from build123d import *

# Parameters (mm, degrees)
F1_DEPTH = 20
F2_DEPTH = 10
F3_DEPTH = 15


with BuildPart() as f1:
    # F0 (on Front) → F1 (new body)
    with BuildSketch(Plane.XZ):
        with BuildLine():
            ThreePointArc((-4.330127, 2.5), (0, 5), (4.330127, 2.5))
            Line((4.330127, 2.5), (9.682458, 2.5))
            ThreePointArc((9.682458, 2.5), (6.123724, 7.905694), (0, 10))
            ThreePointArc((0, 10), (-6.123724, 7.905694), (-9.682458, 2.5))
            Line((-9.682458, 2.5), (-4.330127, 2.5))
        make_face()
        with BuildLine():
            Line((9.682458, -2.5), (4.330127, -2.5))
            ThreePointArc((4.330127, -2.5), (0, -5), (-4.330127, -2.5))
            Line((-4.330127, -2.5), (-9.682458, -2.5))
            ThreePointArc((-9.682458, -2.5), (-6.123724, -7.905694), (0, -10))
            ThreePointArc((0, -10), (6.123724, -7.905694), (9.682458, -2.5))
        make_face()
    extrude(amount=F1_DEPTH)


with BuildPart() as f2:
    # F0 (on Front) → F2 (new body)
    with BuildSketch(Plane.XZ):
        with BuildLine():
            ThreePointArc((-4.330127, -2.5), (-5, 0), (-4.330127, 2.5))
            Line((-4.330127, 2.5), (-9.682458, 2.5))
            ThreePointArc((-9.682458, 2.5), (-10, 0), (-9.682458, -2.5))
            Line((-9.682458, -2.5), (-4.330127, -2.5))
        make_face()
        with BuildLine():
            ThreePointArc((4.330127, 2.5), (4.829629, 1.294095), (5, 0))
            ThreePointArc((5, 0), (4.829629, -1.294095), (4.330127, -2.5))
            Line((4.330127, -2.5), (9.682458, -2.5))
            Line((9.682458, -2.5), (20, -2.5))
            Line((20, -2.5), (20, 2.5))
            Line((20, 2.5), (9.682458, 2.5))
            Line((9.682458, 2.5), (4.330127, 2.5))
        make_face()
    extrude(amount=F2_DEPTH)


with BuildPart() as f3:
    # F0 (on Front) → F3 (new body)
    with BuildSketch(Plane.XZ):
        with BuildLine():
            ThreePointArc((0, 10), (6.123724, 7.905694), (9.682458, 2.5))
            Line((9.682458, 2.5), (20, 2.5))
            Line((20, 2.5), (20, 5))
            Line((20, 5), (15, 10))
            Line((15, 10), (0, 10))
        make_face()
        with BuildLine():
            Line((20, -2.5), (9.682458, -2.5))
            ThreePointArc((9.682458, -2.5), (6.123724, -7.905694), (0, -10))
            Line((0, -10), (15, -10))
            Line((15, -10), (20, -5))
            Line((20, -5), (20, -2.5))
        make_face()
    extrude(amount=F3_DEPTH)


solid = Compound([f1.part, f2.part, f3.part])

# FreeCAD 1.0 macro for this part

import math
import FreeCAD as App
import Part
import Sketcher

doc = App.newDocument("Part")
body = doc.addObject("PartDesign::Body", "Body")
body.AllowCompound = True

sketch1 = doc.addObject("Sketcher::SketchObject", "Sketch")
body.addObject(sketch1)
sketch1.AttachmentSupport = (doc.XZ_Plane, [""])
sketch1.MapMode = "FlatFace"
sketch1.addGeometry(Part.ArcOfCircle(Part.Circle(App.Vector(0, 0, 0), App.Vector(0, 0, 1), 5), math.radians(30), math.radians(150)), False)
sketch1.addGeometry(Part.LineSegment(App.Vector(4.3, 2.5, 0), App.Vector(9.7, 2.5, 0)), False)
sketch1.addGeometry(Part.ArcOfCircle(Part.Circle(App.Vector(0, 0, 0), App.Vector(0, 0, 1), 10), math.radians(14), math.radians(90)), False)
sketch1.addGeometry(Part.ArcOfCircle(Part.Circle(App.Vector(0, 0, 0), App.Vector(0, 0, 1), 10), math.radians(90), math.radians(166)), False)
sketch1.addGeometry(Part.LineSegment(App.Vector(-9.7, 2.5, 0), App.Vector(-4.3, 2.5, 0)), False)
sketch1.addGeometry(Part.LineSegment(App.Vector(9.7, -2.5, 0), App.Vector(4.3, -2.5, 0)), False)
sketch1.addGeometry(Part.ArcOfCircle(Part.Circle(App.Vector(0, 0, 0), App.Vector(0, 0, 1), 5), math.radians(-150), math.radians(-30)), False)
sketch1.addGeometry(Part.LineSegment(App.Vector(-4.3, -2.5, 0), App.Vector(-9.7, -2.5, 0)), False)
sketch1.addGeometry(Part.ArcOfCircle(Part.Circle(App.Vector(0, 0, 0), App.Vector(0, 0, 1), 10), math.radians(-166), math.radians(-90)), False)
sketch1.addGeometry(Part.ArcOfCircle(Part.Circle(App.Vector(0, 0, 0), App.Vector(0, 0, 1), 10), math.radians(-90), math.radians(-14)), False)
sketch1.addConstraint(Sketcher.Constraint("Coincident", 0, 1, 1, 1))
sketch1.addConstraint(Sketcher.Constraint("Coincident", 1, 2, 2, 1))
sketch1.addConstraint(Sketcher.Constraint("Tangent", 2, 2, 3, 1))
sketch1.addConstraint(Sketcher.Constraint("Coincident", 3, 2, 4, 1))
sketch1.addConstraint(Sketcher.Constraint("Coincident", 4, 2, 0, 2))
sketch1.addConstraint(Sketcher.Constraint("Coincident", 5, 2, 6, 2))
sketch1.addConstraint(Sketcher.Constraint("Coincident", 6, 1, 7, 1))
sketch1.addConstraint(Sketcher.Constraint("Coincident", 7, 2, 8, 1))
sketch1.addConstraint(Sketcher.Constraint("Tangent", 8, 2, 9, 1))
sketch1.addConstraint(Sketcher.Constraint("Coincident", 9, 2, 5, 1))
sketch1.addConstraint(Sketcher.Constraint("Horizontal", 1))
sketch1.addConstraint(Sketcher.Constraint("Horizontal", 4))
sketch1.addConstraint(Sketcher.Constraint("Horizontal", 5))
sketch1.addConstraint(Sketcher.Constraint("Horizontal", 7))
sketch1.addConstraint(Sketcher.Constraint("Coincident", 0, 3, -1, 1))
sketch1.addConstraint(Sketcher.Constraint("Coincident", 2, 3, -1, 1))
sketch1.addConstraint(Sketcher.Constraint("Coincident", 6, 3, -1, 1))
sketch1.addConstraint(Sketcher.Constraint("Coincident", 8, 3, -1, 1))
sketch1.addConstraint(Sketcher.Constraint("Equal", 2, 3))
sketch1.addConstraint(Sketcher.Constraint("Equal", 0, 6))
sketch1.addConstraint(Sketcher.Constraint("Equal", 3, 8))
sketch1.addConstraint(Sketcher.Constraint("Equal", 8, 9))
sketch1.addConstraint(Sketcher.Constraint("PointOnObject", 2, 2, -2))
sketch1.addConstraint(Sketcher.Constraint("PointOnObject", 8, 2, -2))
sketch1.addConstraint(Sketcher.Constraint("Horizontal", 1, 2, 3, 2))
sketch1.addConstraint(Sketcher.Constraint("Horizontal", 5, 2, 6, 1))
sketch1.addConstraint(Sketcher.Constraint("Vertical", 0, 1, 5, 2))
sketch1.addConstraint(Sketcher.Constraint("Radius", 0, 5.0))
sketch1.addConstraint(Sketcher.Constraint("Radius", 2, 10.0))
sketch1.addConstraint(Sketcher.Constraint("DistanceY", 5, 2, 0, 1, 5.0))
pad1 = doc.addObject("PartDesign::Pad", "Pad")
body.addObject(pad1)
pad1.Profile = sketch1
pad1.Length = 20
body2 = doc.addObject("PartDesign::Body", "Body001")
body2.AllowCompound = True

sketch2 = doc.addObject("Sketcher::SketchObject", "Sketch001")
body2.addObject(sketch2)
sketch2.AttachmentSupport = (doc.getObject("XZ_Plane001"), [""])
sketch2.MapMode = "FlatFace"
sketch2.addGeometry(Part.ArcOfCircle(Part.Circle(App.Vector(0, 0, 0), App.Vector(0, 0, 1), 5), math.radians(150), math.radians(210)), False)
sketch2.addGeometry(Part.LineSegment(App.Vector(-4.3, 2.5, 0), App.Vector(-9.7, 2.5, 0)), False)
sketch2.addGeometry(Part.ArcOfCircle(Part.Circle(App.Vector(0, 0, 0), App.Vector(0, 0, 1), 10), math.radians(166), math.radians(194)), False)
sketch2.addGeometry(Part.LineSegment(App.Vector(-9.7, -2.5, 0), App.Vector(-4.3, -2.5, 0)), False)
sketch2.addGeometry(Part.ArcOfCircle(Part.Circle(App.Vector(0, 0, 0), App.Vector(0, 0, 1), 5), math.radians(0), math.radians(30)), False)
sketch2.addGeometry(Part.ArcOfCircle(Part.Circle(App.Vector(0, 0, 0), App.Vector(0, 0, 1), 5), math.radians(-30), math.radians(0)), False)
sketch2.addGeometry(Part.LineSegment(App.Vector(4.3, -2.5, 0), App.Vector(20, -2.5, 0)), False)
sketch2.addGeometry(Part.LineSegment(App.Vector(20, -2.5, 0), App.Vector(20, 2.5, 0)), False)
sketch2.addGeometry(Part.LineSegment(App.Vector(20, 2.5, 0), App.Vector(4.3, 2.5, 0)), False)
sketch2.addConstraint(Sketcher.Constraint("Coincident", 0, 1, 1, 1))
sketch2.addConstraint(Sketcher.Constraint("Coincident", 1, 2, 2, 1))
sketch2.addConstraint(Sketcher.Constraint("Coincident", 2, 2, 3, 1))
sketch2.addConstraint(Sketcher.Constraint("Coincident", 3, 2, 0, 2))
sketch2.addConstraint(Sketcher.Constraint("Tangent", 4, 1, 5, 2))
sketch2.addConstraint(Sketcher.Constraint("Coincident", 5, 1, 6, 1))
sketch2.addConstraint(Sketcher.Constraint("Coincident", 6, 2, 7, 1))
sketch2.addConstraint(Sketcher.Constraint("Coincident", 7, 2, 8, 1))
sketch2.addConstraint(Sketcher.Constraint("Coincident", 8, 2, 4, 2))
sketch2.addConstraint(Sketcher.Constraint("Horizontal", 1))
sketch2.addConstraint(Sketcher.Constraint("Horizontal", 3))
sketch2.addConstraint(Sketcher.Constraint("Horizontal", 6))
sketch2.addConstraint(Sketcher.Constraint("Vertical", 7))
sketch2.addConstraint(Sketcher.Constraint("Horizontal", 8))
sketch2.addConstraint(Sketcher.Constraint("Coincident", 0, 3, -1, 1))
sketch2.addConstraint(Sketcher.Constraint("Coincident", 4, 3, -1, 1))
sketch2.addConstraint(Sketcher.Constraint("Equal", 4, 5))
sketch2.addConstraint(Sketcher.Constraint("Symmetric", 0, 1, 5, 1, -1, 1))
sketch2.addConstraint(Sketcher.Constraint("Symmetric", 1, 2, 2, 2, -1))
sketch2.addConstraint(Sketcher.Constraint("PointOnObject", 4, 1, -1))
sketch2.addConstraint(Sketcher.Constraint("Horizontal", 1, 2, 7, 2))
sketch2.addConstraint(Sketcher.Constraint("Radius", 0, 5.0))
sketch2.addConstraint(Sketcher.Constraint("DistanceY", 7, 1, 7, 2, 5.0))
sketch2.addConstraint(Sketcher.Constraint("DistanceX", -1, 1, 6, 2, 20.0))
sketch2.addConstraint(Sketcher.Constraint("Radius", 2, 9.999989))
sketch2.addConstraint(Sketcher.Constraint("DistanceX", 1, 2, 1, 1, 5.352331))
pad2 = doc.addObject("PartDesign::Pad", "Pad001")
body2.addObject(pad2)
pad2.Profile = sketch2
pad2.Length = 10
body3 = doc.addObject("PartDesign::Body", "Body002")
body3.AllowCompound = True

sketch3 = doc.addObject("Sketcher::SketchObject", "Sketch002")
body3.addObject(sketch3)
sketch3.AttachmentSupport = (doc.getObject("XZ_Plane002"), [""])
sketch3.MapMode = "FlatFace"
sketch3.addGeometry(Part.ArcOfCircle(Part.Circle(App.Vector(0, 0, 0), App.Vector(0, 0, 1), 10), math.radians(14), math.radians(90)), False)
sketch3.addGeometry(Part.LineSegment(App.Vector(9.7, 2.5, 0), App.Vector(20, 2.5, 0)), False)
sketch3.addGeometry(Part.LineSegment(App.Vector(20, 2.5, 0), App.Vector(20, 5, 0)), False)
sketch3.addGeometry(Part.LineSegment(App.Vector(20, 5, 0), App.Vector(15, 10, 0)), False)
sketch3.addGeometry(Part.LineSegment(App.Vector(15, 10, 0), App.Vector(0, 10, 0)), False)
sketch3.addGeometry(Part.LineSegment(App.Vector(20, -2.5, 0), App.Vector(9.7, -2.5, 0)), False)
sketch3.addGeometry(Part.ArcOfCircle(Part.Circle(App.Vector(0, 0, 0), App.Vector(0, 0, 1), 10), math.radians(-90), math.radians(-14)), False)
sketch3.addGeometry(Part.LineSegment(App.Vector(0, -10, 0), App.Vector(15, -10, 0)), False)
sketch3.addGeometry(Part.LineSegment(App.Vector(15, -10, 0), App.Vector(20, -5, 0)), False)
sketch3.addGeometry(Part.LineSegment(App.Vector(20, -5, 0), App.Vector(20, -2.5, 0)), False)
sketch3.addConstraint(Sketcher.Constraint("Coincident", 0, 1, 1, 1))
sketch3.addConstraint(Sketcher.Constraint("Coincident", 1, 2, 2, 1))
sketch3.addConstraint(Sketcher.Constraint("Coincident", 2, 2, 3, 1))
sketch3.addConstraint(Sketcher.Constraint("Coincident", 3, 2, 4, 1))
sketch3.addConstraint(Sketcher.Constraint("Tangent", 4, 2, 0, 2))
sketch3.addConstraint(Sketcher.Constraint("Coincident", 5, 2, 6, 2))
sketch3.addConstraint(Sketcher.Constraint("Tangent", 6, 1, 7, 1))
sketch3.addConstraint(Sketcher.Constraint("Coincident", 7, 2, 8, 1))
sketch3.addConstraint(Sketcher.Constraint("Coincident", 8, 2, 9, 1))
sketch3.addConstraint(Sketcher.Constraint("Coincident", 9, 2, 5, 1))
sketch3.addConstraint(Sketcher.Constraint("Horizontal", 1))
sketch3.addConstraint(Sketcher.Constraint("Vertical", 2))
sketch3.addConstraint(Sketcher.Constraint("Horizontal", 4))
sketch3.addConstraint(Sketcher.Constraint("Horizontal", 5))
sketch3.addConstraint(Sketcher.Constraint("Horizontal", 7))
sketch3.addConstraint(Sketcher.Constraint("Vertical", 9))
sketch3.addConstraint(Sketcher.Constraint("Coincident", 0, 3, -1, 1))
sketch3.addConstraint(Sketcher.Constraint("Coincident", 6, 3, -1, 1))
sketch3.addConstraint(Sketcher.Constraint("Equal", 0, 6))
sketch3.addConstraint(Sketcher.Constraint("Symmetric", 2, 2, 8, 2, -1))
sketch3.addConstraint(Sketcher.Constraint("Perpendicular", 3, 8))
sketch3.addConstraint(Sketcher.Constraint("Vertical", 0, 1, 5, 2))
sketch3.addConstraint(Sketcher.Constraint("Vertical", 3, 2, 7, 2))
sketch3.addConstraint(Sketcher.Constraint("Radius", 0, 10.0))
sketch3.addConstraint(Sketcher.Constraint("DistanceX", 4, 2, 4, 1, 15.0))
sketch3.addConstraint(Sketcher.Constraint("DistanceY", 2, 1, 2, 2, 2.5))
sketch3.addConstraint(Sketcher.Constraint("DistanceX", -1, 1, 1, 2, 20.0))
pad3 = doc.addObject("PartDesign::Pad", "Pad002")
body3.addObject(pad3)
pad3.Profile = sketch3
pad3.Length = 15

doc.recompute()
